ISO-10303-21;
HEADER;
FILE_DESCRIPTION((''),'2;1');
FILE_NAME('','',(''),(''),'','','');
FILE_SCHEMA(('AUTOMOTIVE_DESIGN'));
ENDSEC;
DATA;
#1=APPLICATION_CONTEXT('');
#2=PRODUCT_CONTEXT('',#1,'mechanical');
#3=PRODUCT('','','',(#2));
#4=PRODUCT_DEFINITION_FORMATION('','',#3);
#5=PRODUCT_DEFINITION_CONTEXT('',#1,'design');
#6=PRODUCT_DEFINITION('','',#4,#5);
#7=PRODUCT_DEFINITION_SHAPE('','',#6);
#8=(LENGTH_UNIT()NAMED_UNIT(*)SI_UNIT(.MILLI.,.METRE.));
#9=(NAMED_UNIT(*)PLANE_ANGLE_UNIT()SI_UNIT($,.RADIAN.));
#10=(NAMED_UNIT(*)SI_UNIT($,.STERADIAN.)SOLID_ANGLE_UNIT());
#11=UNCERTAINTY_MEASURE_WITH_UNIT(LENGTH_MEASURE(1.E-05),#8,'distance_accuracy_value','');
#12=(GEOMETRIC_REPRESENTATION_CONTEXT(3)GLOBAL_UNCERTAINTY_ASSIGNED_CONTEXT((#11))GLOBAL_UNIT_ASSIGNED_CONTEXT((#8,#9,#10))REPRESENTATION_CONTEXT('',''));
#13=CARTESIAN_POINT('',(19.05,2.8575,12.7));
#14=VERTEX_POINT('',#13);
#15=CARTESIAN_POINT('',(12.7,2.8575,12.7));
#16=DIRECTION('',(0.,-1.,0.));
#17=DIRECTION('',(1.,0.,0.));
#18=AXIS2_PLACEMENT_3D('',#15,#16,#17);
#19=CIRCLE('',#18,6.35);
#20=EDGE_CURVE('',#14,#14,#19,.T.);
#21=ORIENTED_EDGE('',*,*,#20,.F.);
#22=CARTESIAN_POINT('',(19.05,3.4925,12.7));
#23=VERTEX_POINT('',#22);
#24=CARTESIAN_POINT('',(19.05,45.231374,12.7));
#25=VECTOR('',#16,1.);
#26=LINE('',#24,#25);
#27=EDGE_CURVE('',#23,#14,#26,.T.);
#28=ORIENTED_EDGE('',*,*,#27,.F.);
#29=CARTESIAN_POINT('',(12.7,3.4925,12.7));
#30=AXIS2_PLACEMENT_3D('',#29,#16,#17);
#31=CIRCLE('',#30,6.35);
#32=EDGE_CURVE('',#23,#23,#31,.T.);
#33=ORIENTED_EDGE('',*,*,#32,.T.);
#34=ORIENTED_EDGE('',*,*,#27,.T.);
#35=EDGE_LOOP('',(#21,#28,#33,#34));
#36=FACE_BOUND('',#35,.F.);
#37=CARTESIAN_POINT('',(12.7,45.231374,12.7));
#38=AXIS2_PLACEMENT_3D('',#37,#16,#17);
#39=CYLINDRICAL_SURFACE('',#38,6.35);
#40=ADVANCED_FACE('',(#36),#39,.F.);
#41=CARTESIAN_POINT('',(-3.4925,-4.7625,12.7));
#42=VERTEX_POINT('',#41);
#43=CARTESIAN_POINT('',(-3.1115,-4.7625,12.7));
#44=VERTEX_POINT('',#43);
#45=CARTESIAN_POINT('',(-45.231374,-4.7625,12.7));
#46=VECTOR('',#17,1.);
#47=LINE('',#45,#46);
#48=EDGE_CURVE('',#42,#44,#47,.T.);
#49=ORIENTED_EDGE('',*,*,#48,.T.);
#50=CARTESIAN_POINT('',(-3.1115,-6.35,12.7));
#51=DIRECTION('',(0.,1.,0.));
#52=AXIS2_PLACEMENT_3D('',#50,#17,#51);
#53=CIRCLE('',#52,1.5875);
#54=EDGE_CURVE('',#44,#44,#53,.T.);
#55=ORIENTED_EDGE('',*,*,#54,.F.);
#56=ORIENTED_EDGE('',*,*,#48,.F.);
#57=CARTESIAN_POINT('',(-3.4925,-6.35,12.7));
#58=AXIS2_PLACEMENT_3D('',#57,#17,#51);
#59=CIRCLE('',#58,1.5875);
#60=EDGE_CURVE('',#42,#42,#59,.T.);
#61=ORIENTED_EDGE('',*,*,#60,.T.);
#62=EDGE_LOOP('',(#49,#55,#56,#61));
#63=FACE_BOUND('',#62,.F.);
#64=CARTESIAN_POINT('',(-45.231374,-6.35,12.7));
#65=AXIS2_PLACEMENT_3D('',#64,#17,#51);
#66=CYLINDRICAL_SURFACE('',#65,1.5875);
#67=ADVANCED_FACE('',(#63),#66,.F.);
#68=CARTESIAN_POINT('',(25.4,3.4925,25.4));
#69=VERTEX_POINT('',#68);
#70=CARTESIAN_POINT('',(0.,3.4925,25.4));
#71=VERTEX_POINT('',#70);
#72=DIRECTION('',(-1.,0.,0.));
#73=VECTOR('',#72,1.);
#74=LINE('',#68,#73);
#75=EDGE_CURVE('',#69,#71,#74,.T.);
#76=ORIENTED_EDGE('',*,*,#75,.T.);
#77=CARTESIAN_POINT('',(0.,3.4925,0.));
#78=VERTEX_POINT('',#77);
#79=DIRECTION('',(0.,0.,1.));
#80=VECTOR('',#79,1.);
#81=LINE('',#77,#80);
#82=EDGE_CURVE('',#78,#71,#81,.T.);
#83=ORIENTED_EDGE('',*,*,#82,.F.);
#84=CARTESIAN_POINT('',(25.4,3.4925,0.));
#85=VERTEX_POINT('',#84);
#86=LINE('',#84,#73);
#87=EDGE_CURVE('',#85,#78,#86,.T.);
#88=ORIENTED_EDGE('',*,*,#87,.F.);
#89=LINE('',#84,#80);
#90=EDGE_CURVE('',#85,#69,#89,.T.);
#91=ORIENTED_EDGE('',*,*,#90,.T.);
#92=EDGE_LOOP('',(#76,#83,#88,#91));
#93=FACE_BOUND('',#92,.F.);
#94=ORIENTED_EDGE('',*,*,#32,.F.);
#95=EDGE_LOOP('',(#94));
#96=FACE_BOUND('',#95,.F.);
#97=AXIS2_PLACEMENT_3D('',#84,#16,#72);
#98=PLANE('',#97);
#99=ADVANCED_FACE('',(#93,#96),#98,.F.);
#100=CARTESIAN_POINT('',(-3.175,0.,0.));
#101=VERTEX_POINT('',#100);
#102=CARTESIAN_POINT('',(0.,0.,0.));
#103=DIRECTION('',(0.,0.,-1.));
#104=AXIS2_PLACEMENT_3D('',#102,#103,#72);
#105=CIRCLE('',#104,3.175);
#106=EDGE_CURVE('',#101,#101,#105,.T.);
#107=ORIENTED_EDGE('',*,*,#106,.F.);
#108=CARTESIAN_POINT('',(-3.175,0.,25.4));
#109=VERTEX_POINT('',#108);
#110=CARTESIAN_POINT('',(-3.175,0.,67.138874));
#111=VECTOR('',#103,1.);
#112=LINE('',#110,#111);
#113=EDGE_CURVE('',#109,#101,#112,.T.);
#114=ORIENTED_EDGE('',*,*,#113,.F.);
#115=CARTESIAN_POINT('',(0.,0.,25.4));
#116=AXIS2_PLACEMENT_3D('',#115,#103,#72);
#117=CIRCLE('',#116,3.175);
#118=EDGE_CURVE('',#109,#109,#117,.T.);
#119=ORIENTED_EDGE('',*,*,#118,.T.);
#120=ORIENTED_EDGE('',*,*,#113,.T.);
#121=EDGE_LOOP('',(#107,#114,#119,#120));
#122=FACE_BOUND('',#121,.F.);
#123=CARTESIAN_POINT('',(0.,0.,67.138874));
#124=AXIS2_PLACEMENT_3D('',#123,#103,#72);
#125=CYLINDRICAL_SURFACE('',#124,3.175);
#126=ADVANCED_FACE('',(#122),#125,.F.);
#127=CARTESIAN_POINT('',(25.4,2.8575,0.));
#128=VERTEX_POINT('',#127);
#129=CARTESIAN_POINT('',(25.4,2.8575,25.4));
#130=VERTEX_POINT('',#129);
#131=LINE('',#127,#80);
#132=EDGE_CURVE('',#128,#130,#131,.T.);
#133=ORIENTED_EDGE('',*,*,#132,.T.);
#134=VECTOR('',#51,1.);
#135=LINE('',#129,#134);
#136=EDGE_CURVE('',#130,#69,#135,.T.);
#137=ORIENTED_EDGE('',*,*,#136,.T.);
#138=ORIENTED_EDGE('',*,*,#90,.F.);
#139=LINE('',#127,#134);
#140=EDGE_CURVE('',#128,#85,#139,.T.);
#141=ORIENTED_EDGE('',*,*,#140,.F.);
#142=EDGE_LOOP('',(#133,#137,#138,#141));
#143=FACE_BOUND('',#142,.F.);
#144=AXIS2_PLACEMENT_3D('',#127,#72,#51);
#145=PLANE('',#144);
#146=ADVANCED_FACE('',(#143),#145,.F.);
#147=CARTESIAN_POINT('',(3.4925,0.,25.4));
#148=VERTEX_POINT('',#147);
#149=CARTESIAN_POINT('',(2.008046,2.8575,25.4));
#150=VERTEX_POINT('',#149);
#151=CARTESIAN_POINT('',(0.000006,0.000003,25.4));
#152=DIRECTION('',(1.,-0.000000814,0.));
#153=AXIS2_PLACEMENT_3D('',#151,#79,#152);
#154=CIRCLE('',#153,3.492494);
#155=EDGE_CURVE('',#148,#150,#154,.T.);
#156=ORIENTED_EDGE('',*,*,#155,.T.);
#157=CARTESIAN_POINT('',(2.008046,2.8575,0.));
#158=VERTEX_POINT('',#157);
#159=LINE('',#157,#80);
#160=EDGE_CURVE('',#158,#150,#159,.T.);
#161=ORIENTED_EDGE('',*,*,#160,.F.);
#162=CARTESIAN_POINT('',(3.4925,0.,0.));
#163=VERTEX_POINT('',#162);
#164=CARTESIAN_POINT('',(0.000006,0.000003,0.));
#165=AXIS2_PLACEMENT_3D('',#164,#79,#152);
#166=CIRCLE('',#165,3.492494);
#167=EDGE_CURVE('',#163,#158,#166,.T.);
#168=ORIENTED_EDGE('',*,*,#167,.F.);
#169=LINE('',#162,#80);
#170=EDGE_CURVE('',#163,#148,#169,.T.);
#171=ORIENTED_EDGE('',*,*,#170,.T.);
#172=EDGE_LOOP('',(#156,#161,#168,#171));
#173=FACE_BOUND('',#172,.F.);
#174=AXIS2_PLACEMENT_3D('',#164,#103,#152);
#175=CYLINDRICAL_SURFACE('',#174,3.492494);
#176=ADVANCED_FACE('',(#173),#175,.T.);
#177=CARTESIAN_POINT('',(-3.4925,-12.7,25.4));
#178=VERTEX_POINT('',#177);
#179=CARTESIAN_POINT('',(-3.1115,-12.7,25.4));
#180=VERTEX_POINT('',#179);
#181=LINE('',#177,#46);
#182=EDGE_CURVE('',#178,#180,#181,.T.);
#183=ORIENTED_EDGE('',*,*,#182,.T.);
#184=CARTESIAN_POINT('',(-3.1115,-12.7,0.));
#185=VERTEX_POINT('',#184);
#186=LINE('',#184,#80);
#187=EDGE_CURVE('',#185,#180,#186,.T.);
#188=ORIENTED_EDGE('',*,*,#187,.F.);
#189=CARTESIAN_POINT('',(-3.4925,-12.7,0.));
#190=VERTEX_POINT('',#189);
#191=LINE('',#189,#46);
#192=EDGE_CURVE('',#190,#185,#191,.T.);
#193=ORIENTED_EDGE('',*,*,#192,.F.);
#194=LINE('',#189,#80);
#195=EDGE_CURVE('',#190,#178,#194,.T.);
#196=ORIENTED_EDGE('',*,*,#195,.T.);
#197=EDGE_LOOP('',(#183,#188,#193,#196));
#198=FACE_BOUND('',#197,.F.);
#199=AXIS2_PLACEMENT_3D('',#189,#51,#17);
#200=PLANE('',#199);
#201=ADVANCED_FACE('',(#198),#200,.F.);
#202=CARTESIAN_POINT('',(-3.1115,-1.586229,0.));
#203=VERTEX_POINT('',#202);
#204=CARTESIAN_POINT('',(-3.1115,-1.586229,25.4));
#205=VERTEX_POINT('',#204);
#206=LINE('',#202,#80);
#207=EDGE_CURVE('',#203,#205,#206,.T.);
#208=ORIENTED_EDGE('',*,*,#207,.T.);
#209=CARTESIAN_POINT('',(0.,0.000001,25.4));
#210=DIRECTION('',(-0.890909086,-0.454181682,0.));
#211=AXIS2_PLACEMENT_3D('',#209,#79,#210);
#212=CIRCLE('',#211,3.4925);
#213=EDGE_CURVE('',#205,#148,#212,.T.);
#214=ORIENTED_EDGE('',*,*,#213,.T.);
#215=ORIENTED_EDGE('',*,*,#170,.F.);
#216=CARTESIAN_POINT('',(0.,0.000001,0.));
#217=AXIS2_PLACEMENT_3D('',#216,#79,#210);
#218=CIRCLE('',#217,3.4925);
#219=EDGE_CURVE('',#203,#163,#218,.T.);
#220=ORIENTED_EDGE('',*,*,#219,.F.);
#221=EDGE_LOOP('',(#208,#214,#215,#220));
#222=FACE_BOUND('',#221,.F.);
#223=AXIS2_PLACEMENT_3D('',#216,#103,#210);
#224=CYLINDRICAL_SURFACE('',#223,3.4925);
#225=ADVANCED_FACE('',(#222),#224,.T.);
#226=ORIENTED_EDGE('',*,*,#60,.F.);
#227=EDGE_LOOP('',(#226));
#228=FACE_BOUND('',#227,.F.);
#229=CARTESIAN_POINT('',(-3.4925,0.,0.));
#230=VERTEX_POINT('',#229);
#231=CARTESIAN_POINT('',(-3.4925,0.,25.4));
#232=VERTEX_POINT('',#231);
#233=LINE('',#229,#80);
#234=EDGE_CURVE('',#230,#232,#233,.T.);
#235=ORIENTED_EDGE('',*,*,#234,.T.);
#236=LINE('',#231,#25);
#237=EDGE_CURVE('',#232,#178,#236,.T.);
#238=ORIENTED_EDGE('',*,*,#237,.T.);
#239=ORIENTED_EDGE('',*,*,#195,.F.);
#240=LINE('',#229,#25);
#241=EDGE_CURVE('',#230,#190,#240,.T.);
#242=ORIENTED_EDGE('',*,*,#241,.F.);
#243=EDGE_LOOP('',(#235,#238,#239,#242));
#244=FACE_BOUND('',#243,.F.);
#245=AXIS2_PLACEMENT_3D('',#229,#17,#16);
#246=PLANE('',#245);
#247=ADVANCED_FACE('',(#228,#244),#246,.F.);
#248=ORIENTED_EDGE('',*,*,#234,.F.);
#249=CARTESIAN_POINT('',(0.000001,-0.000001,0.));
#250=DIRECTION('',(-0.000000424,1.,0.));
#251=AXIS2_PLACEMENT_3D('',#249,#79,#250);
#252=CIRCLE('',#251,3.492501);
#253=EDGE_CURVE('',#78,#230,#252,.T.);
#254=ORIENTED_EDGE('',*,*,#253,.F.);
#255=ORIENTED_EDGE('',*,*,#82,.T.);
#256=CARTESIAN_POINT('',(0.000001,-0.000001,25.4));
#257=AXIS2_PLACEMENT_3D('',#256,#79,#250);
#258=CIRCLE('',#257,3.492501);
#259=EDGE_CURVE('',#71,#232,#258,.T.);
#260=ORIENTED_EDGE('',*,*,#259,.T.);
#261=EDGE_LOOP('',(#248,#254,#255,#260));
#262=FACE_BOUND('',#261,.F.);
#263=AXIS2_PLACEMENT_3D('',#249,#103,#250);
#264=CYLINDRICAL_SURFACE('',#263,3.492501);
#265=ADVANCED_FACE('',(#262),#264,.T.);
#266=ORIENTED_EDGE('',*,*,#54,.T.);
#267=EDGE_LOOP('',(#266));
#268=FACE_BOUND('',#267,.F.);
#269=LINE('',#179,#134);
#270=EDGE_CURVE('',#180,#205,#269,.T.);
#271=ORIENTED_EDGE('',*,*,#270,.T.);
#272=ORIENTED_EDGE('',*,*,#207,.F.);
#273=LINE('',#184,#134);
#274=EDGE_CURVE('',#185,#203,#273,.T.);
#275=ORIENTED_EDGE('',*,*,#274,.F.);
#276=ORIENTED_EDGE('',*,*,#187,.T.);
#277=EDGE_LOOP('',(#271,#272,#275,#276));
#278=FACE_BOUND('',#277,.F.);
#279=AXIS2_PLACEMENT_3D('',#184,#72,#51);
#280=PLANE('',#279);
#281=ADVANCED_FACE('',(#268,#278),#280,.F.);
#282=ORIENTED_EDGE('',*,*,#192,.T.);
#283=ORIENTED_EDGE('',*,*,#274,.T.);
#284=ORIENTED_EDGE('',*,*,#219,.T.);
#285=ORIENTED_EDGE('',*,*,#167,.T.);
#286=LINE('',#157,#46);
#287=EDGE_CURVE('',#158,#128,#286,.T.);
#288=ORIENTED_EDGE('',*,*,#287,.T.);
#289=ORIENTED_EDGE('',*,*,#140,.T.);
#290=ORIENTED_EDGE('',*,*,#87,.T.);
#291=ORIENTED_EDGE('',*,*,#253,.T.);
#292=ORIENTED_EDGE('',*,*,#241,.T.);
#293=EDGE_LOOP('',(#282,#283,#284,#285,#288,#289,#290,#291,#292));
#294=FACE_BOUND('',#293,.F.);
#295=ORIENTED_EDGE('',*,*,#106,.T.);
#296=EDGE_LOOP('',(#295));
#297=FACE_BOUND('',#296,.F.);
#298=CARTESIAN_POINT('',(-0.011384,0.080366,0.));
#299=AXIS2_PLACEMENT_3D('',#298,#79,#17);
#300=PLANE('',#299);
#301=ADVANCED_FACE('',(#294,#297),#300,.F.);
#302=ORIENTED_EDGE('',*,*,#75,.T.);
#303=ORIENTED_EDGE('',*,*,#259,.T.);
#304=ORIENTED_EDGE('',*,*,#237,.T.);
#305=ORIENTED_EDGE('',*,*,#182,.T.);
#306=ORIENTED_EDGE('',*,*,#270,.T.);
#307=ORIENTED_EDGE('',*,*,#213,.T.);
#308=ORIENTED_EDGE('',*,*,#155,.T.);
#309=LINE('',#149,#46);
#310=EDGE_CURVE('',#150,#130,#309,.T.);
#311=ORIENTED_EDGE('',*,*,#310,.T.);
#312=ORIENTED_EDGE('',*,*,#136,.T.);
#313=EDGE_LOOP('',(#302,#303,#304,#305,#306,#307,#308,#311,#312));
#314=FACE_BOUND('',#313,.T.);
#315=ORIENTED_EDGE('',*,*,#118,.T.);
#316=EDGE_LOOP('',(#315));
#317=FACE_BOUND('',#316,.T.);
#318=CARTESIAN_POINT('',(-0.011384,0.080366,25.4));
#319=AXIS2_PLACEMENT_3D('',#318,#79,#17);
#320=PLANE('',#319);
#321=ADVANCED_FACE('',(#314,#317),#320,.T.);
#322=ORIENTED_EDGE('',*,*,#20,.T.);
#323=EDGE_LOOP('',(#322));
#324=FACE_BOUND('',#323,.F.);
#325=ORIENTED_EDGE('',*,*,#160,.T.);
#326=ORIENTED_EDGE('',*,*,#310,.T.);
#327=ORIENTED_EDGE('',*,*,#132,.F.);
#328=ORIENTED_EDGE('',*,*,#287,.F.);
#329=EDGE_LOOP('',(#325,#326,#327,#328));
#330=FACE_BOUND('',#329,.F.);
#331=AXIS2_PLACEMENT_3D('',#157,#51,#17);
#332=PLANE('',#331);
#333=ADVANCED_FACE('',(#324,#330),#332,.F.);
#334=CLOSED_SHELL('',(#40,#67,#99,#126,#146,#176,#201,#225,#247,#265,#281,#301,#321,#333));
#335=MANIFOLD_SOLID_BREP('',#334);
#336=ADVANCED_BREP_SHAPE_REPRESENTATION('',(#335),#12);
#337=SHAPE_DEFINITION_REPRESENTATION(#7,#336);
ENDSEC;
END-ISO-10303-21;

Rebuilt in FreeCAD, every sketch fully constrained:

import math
import FreeCAD as App
import Part
import Sketcher
from FreeCAD import Vector
Q = App.Units.Quantity

doc = App.newDocument("Part")
params = doc.addObject("Spreadsheet::Sheet", "Params")
for row, (alias, value) in enumerate([
    ("sketch1_width", "1 in"),
    ("sketch1_height", "0.5 in"),
    ("sketch1_width2", "0.015 in"),
    ("sketch1_height2", "0.025 in"),
    ("pad1_length", "1 in"),
    ("sketch2_diameter", "0.125 in"),
    ("hole_diameter", "0.125 in"),
    ("sketch3_diameter", "0.5 in"),
    ("hole2_diameter", "0.5 in"),
    ("sketch4_diameter", "0.25 in"),
    ("hole3_diameter", "0.25 in"),
], start=1):
    params.set(f"A{row}", alias)
    params.set(f"B{row}", "=" + value)
    params.setAlias(f"B{row}", alias)

body = doc.addObject("PartDesign::Body", "Body")

# Sketch on XY plane
sketch1 = body.newObject("Sketcher::SketchObject", "Sketch")
sketch1.AttachmentSupport = (doc.getObject("XY_Plane"), [""])
sketch1.MapMode = "FlatFace"
sketch1.addGeometry([
    Part.ArcOfCircle(Part.Circle(Vector(0, 0, 0), Vector(0, 0, 1), 3.49), math.radians(-153), math.radians(0)),  # 0
    Part.ArcOfCircle(Part.Circle(Vector(0, 0, 0), Vector(0, 0, 1), 3.49), math.radians(0), math.radians(55)),  # 1
    Part.LineSegment(Vector(2.01, 2.86, 0), Vector(25.4, 2.86, 0)),  # 2
    Part.LineSegment(Vector(25.4, 2.86, 0), Vector(25.4, 3.49, 0)),  # 3
    Part.LineSegment(Vector(25.4, 3.49, 0), Vector(0, 3.49, 0)),  # 4
    Part.ArcOfCircle(Part.Circle(Vector(0, 0, 0), Vector(0, 0, 1), 3.49), math.radians(90), math.radians(180)),  # 5
    Part.LineSegment(Vector(-3.49, 0, 0), Vector(-3.49, -12.7, 0)),  # 6
    Part.LineSegment(Vector(-3.49, -12.7, 0), Vector(-3.11, -12.7, 0)),  # 7
    Part.LineSegment(Vector(-3.11, -12.7, 0), Vector(-3.11, -1.59, 0)),  # 8
], False)
sketch1.addConstraint([
    Sketcher.Constraint("Tangent", 0, 2, 1, 1),
    Sketcher.Constraint("Coincident", 1, 2, 2, 1),
    Sketcher.Constraint("Coincident", 2, 2, 3, 1),
    Sketcher.Constraint("Coincident", 3, 2, 4, 1),
    Sketcher.Constraint("Tangent", 4, 2, 5, 1),
    Sketcher.Constraint("Tangent", 5, 2, 6, 1),
    Sketcher.Constraint("Coincident", 6, 2, 7, 1),
    Sketcher.Constraint("Coincident", 7, 2, 8, 1),
    Sketcher.Constraint("Coincident", 8, 2, 0, 1),
    Sketcher.Constraint("Horizontal", 2),
    Sketcher.Constraint("Vertical", 3),
    Sketcher.Constraint("Horizontal", 4),
    Sketcher.Constraint("Vertical", 6),
    Sketcher.Constraint("Horizontal", 7),
    Sketcher.Constraint("Vertical", 8),
    Sketcher.Constraint("Coincident", 0, 3, -1, 1),
    Sketcher.Constraint("Coincident", 5, 3, -1, 1),
    Sketcher.Constraint("Equal", 0, 5),
    Sketcher.Constraint("PointOnObject", 0, 2, -1),
    Sketcher.Constraint("DistanceX", 4, 2, 4, 1, Q("1 in")),
    Sketcher.Constraint("DistanceY", 6, 2, 6, 1, Q("0.5 in")),
    Sketcher.Constraint("Radius", 0, Q("0.1375 in")),
    Sketcher.Constraint("DistanceX", 7, 1, 7, 2, Q("0.015 in")),
    Sketcher.Constraint("DistanceY", 3, 1, 3, 2, Q("0.025 in")),
    Sketcher.Constraint("Radius", 1, 3.492494),
])
sketch1.setExpression("Constraints[19]", "Params.sketch1_width")
sketch1.setExpression("Constraints[20]", "Params.sketch1_height")
sketch1.setExpression("Constraints[22]", "Params.sketch1_width2")
sketch1.setExpression("Constraints[23]", "Params.sketch1_height2")
pad1 = body.newObject("PartDesign::Pad", "Pad")
pad1.Profile = sketch1
pad1.setExpression("Length", "Params.pad1_length")

# Sketch on YZ plane
sketch2 = body.newObject("Sketcher::SketchObject", "Sketch001")
sketch2.AttachmentSupport = (doc.getObject("YZ_Plane"), [""])
sketch2.MapMode = "FlatFace"
sketch2.AttachmentOffset = App.Placement(Vector(0, 0, -0.1375 * 25.4), App.Rotation())
sketch2.addGeometry(Part.Circle(Vector(-6.3, 12.7, 0), Vector(0, 0, 1), 1.6), False)
sketch2.addConstraint([
    Sketcher.Constraint("Diameter", 0, Q("0.125 in")),
    Sketcher.Constraint("DistanceY", -1, 1, 0, 3, Q("0.5 in")),
    Sketcher.Constraint("DistanceX", 0, 3, -1, 1, Q("0.25 in")),
])
sketch2.setExpression("Constraints[0]", "Params.sketch2_diameter")
doc.recompute()
hole = body.newObject("PartDesign::Hole", "Hole")
hole.Profile = sketch2
hole.ThreadType = "None"
hole.setExpression("Diameter", "Params.hole_diameter")
hole.DepthType = "ThroughAll"
hole.Reversed = True

# Sketch on XZ plane
sketch3 = body.newObject("Sketcher::SketchObject", "Sketch002")
sketch3.AttachmentSupport = (doc.getObject("XZ_Plane"), [""])
sketch3.MapMode = "FlatFace"
sketch3.AttachmentOffset = App.Placement(Vector(0, 0, -0.1375 * 25.4), App.Rotation())
sketch3.addGeometry(Part.Circle(Vector(13, 13, 0), Vector(0, 0, 1), 6), False)
sketch3.addConstraint([
    Sketcher.Constraint("Diameter", 0, Q("0.5 in")),
    Sketcher.Constraint("DistanceX", -1, 1, 0, 3, Q("0.5 in")),
    Sketcher.Constraint("DistanceY", -1, 1, 0, 3, Q("0.5 in")),
])
sketch3.setExpression("Constraints[0]", "Params.sketch3_diameter")
doc.recompute()
hole2 = body.newObject("PartDesign::Hole", "Hole001")
hole2.Profile = sketch3
hole2.ThreadType = "None"
hole2.setExpression("Diameter", "Params.hole2_diameter")
hole2.DepthType = "ThroughAll"
hole2.Reversed = True

# Sketch on XY plane
sketch4 = body.newObject("Sketcher::SketchObject", "Sketch003")
sketch4.AttachmentSupport = (doc.getObject("XY_Plane"), [""])
sketch4.MapMode = "FlatFace"
sketch4.AttachmentOffset = App.Placement(Vector(0, 0, 1 * 25.4), App.Rotation())
sketch4.addGeometry(Part.Circle(Vector(0, 0, 0), Vector(0, 0, 1), 3.2), False)
sketch4.addConstraint([
    Sketcher.Constraint("Coincident", 0, 3, -1, 1),
    Sketcher.Constraint("Diameter", 0, Q("0.25 in")),
])
sketch4.setExpression("Constraints[1]", "Params.sketch4_diameter")
doc.recompute()
hole3 = body.newObject("PartDesign::Hole", "Hole002")
hole3.Profile = sketch4
hole3.ThreadType = "None"
hole3.setExpression("Diameter", "Params.hole3_diameter")
hole3.DepthType = "ThroughAll"

doc.recompute()
